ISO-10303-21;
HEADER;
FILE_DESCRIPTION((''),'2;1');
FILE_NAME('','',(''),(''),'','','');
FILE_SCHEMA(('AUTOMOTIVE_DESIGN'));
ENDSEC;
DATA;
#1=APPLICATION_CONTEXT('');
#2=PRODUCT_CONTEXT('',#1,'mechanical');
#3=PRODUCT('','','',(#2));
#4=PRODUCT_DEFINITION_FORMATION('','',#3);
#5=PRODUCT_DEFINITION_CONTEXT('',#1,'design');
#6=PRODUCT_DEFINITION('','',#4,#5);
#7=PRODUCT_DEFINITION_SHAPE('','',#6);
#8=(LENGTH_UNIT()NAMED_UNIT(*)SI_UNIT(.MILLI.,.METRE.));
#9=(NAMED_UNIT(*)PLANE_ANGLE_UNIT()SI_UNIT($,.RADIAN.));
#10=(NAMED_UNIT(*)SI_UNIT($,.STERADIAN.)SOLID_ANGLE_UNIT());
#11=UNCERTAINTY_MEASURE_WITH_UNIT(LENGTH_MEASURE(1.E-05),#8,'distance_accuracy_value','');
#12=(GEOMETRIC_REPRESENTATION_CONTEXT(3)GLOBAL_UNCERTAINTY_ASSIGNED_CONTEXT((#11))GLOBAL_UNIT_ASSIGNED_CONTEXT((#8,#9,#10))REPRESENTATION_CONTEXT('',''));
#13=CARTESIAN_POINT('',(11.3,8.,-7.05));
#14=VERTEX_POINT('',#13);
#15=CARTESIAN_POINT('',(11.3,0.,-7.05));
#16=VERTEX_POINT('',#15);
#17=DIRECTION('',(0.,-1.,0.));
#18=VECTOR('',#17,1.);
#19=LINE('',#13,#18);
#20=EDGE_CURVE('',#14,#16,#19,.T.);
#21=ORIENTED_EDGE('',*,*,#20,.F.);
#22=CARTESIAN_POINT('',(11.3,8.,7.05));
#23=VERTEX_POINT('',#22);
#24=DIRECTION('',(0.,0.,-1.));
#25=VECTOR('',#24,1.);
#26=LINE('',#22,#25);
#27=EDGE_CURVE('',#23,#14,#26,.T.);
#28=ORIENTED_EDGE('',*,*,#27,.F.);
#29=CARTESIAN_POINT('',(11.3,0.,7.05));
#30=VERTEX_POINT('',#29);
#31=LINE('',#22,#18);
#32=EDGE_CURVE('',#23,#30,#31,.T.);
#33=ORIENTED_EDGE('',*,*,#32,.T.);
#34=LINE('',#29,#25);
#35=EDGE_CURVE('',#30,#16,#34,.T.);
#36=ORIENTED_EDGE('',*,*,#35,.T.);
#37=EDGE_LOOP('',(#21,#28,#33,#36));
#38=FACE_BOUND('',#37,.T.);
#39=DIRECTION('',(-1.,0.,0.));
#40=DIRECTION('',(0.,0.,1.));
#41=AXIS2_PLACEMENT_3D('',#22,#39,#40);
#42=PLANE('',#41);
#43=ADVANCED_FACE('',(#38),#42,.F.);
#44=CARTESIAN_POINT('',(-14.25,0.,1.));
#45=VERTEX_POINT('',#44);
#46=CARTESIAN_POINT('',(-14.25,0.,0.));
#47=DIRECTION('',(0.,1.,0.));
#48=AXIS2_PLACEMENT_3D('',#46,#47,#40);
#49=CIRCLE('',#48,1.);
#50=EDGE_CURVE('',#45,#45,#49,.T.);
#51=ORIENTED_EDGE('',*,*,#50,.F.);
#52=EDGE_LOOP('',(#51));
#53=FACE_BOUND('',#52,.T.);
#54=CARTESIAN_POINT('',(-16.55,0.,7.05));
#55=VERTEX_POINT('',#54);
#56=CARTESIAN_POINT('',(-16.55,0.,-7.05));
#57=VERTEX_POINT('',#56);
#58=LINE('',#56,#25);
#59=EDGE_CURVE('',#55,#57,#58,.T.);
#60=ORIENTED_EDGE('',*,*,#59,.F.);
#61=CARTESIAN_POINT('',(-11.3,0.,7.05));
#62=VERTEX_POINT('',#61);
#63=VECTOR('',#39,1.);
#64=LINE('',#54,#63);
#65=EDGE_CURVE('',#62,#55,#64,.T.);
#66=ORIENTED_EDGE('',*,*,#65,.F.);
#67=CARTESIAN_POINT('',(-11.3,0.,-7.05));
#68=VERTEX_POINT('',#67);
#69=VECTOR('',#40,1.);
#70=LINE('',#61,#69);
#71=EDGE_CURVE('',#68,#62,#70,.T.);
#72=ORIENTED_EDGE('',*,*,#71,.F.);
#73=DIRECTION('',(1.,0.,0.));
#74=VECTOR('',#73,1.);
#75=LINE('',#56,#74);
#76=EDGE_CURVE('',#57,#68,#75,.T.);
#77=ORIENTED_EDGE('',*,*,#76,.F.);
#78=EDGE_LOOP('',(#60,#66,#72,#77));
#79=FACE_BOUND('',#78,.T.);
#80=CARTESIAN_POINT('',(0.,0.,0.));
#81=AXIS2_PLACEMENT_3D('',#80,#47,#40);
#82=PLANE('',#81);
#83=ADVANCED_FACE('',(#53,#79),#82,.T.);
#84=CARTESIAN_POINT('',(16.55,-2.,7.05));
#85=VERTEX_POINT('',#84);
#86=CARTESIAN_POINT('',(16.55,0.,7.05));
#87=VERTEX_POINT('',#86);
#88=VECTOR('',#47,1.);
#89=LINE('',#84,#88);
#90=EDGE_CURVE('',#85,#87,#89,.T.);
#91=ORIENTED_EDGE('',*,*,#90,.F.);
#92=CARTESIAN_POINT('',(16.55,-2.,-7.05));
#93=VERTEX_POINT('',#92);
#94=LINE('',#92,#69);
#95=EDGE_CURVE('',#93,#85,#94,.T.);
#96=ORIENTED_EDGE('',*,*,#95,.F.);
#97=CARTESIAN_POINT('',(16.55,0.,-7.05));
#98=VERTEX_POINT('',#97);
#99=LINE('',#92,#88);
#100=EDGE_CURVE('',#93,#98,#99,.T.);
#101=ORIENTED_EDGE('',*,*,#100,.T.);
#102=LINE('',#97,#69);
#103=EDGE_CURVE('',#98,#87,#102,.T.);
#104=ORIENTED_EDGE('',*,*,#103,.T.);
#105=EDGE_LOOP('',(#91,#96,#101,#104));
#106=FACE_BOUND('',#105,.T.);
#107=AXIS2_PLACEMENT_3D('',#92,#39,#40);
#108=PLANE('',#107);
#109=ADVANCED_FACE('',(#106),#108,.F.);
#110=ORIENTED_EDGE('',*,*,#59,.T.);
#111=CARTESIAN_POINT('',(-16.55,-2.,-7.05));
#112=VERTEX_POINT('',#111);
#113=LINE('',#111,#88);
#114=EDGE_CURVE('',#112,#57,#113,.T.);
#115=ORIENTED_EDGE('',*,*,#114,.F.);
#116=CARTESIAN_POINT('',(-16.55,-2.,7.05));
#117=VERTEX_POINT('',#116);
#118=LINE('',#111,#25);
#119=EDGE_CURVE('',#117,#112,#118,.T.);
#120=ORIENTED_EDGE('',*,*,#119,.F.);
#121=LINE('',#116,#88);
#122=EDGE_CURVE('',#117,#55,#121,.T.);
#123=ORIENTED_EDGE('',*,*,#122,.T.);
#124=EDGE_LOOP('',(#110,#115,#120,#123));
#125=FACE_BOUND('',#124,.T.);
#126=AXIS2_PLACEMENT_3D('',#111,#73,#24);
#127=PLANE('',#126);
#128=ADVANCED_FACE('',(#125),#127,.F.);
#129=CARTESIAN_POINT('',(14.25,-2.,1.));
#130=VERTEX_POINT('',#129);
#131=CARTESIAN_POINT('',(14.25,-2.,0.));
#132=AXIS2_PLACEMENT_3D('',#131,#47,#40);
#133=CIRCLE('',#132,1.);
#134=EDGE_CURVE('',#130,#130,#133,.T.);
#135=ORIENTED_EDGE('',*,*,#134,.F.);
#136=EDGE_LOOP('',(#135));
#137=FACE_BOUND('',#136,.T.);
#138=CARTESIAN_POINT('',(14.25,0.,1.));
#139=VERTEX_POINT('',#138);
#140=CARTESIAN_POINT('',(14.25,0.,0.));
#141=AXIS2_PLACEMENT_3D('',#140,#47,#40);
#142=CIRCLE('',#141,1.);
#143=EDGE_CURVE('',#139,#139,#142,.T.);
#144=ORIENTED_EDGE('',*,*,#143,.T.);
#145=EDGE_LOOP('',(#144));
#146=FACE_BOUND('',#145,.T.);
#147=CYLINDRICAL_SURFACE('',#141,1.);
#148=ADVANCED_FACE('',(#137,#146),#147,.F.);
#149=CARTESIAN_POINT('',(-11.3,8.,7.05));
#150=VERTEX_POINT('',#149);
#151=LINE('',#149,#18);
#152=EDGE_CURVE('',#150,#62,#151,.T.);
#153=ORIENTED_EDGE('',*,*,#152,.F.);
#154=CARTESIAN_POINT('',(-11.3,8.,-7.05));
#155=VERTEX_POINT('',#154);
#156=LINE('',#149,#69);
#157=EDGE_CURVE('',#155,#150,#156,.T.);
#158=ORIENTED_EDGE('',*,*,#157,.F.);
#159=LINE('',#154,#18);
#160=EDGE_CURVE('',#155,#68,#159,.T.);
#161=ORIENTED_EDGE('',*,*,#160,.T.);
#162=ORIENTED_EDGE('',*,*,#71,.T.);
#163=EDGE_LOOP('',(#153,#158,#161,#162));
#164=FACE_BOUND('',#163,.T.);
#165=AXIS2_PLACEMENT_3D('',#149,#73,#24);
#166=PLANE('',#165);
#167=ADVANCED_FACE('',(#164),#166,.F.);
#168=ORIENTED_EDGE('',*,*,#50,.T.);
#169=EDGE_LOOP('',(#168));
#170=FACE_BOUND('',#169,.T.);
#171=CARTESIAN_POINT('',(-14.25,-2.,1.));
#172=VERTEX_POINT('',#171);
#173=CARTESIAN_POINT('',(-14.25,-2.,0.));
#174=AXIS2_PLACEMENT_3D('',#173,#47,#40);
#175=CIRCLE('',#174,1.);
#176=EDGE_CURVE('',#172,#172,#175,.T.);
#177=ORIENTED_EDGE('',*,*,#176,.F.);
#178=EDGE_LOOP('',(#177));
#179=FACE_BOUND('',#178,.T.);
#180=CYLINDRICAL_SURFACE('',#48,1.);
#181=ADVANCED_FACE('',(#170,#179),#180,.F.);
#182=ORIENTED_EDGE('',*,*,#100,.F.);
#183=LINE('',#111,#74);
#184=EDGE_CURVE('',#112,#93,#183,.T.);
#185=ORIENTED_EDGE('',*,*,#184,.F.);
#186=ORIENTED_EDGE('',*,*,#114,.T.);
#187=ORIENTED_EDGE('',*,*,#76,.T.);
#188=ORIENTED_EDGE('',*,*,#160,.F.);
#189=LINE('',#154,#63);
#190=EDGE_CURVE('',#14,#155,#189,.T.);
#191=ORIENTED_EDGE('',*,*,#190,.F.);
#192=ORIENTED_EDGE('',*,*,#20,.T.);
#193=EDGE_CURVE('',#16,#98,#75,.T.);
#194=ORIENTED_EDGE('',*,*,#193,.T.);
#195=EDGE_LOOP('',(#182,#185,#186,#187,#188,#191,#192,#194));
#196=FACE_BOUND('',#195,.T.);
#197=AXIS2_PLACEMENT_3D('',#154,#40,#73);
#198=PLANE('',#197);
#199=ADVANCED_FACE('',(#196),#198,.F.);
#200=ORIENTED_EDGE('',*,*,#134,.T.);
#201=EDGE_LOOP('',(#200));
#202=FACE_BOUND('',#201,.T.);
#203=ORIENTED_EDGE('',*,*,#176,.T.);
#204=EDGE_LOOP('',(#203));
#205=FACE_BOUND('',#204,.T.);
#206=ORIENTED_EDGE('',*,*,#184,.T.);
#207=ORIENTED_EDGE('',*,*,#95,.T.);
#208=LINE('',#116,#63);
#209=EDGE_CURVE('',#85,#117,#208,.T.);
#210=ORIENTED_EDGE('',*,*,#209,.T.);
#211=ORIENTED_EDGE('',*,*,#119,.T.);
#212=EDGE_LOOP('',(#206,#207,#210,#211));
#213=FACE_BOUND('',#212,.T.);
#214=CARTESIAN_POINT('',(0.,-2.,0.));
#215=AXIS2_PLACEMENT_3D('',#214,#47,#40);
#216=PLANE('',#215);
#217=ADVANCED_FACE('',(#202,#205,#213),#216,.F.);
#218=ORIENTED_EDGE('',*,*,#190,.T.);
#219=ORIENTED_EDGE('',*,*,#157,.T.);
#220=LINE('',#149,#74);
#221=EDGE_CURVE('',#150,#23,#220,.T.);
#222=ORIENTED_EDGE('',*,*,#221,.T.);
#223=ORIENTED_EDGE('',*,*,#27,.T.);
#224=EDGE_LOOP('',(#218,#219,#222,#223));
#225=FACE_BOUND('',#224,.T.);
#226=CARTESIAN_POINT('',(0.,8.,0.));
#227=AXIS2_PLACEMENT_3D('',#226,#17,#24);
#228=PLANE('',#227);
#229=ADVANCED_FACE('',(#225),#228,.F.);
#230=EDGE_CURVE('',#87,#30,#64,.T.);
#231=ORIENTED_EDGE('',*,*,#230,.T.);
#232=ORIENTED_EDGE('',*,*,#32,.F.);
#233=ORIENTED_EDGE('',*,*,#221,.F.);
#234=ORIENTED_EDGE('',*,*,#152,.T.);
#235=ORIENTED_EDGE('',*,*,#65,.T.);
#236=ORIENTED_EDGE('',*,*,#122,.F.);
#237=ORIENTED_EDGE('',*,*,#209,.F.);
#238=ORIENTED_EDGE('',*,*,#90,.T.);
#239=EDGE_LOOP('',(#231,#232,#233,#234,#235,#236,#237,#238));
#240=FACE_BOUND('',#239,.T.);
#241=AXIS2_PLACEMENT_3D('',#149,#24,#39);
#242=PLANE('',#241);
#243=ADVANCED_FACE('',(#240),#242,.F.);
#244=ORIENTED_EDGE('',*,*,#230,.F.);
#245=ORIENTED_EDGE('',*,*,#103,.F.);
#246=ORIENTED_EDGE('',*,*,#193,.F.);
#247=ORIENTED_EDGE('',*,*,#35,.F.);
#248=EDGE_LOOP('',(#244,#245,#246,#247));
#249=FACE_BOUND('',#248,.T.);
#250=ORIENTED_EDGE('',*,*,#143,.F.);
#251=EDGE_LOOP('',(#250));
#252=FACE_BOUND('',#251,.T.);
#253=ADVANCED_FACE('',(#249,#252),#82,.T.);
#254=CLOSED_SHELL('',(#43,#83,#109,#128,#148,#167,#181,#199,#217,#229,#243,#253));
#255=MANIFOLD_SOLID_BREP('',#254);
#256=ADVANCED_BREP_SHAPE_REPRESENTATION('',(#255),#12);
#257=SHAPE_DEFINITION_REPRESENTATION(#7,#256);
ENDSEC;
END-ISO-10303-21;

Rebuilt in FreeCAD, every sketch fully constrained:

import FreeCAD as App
import Part
import Sketcher
Q = App.Units.Quantity


def add_polygon(sketch, points):
    """Adds a closed chain of lines whose ends are joined by coincident constraints."""
    first, n = sketch.GeometryCount, len(points)
    for a, b in zip(points, points[1:] + points[:1]):
        sketch.addGeometry(Part.LineSegment(App.Vector(*a, 0), App.Vector(*b, 0)), False)
    for i in range(n):
        sketch.addConstraint(Sketcher.Constraint("Coincident", first + i, 2, first + (i + 1) % n, 1))

doc = App.newDocument("Part")
params = doc.addObject("Spreadsheet::Sheet", "Params")
for row, (alias, value) in enumerate([
    ("sketch1_width", "22.6 mm"),
    ("sketch1_height", "14.1 mm"),
    ("pad1_length", "8 mm"),
    ("sketch2_width", "33.1 mm"),
    ("sketch2_height", "14.1 mm"),
    ("pad2_length", "2 mm"),
    ("sketch3_diameter", "2 mm"),
    ("hole_diameter", "2 mm"),
    ("hole_depth", "2 mm"),
], start=1):
    params.set(f"A{row}", alias)
    params.set(f"B{row}", "=" + value)
    params.setAlias(f"B{row}", alias)

body = doc.addObject("PartDesign::Body", "Body")

# Sketch on XZ plane
sketch1 = body.newObject("Sketcher::SketchObject", "Sketch")
sketch1.AttachmentSupport = (doc.getObject("XZ_Plane"), [""])
sketch1.MapMode = "FlatFace"
add_polygon(sketch1, [(-11.3, -7.05), (-11.3, 7.05), (11.3, 7.05), (11.3, -7.05)])  # lines 0-3
sketch1.addConstraint(Sketcher.Constraint("Vertical", 0))
sketch1.addConstraint(Sketcher.Constraint("Horizontal", 1))
sketch1.addConstraint(Sketcher.Constraint("Vertical", 2))
sketch1.addConstraint(Sketcher.Constraint("Horizontal", 3))
sketch1.addConstraint(Sketcher.Constraint("Symmetric", 0, 2, 2, 2, -1, 1))
sketch1.addConstraint(Sketcher.Constraint("DistanceX", 1, 1, 1, 2, Q("22.6 mm")))
sketch1.addConstraint(Sketcher.Constraint("DistanceY", 0, 1, 0, 2, Q("14.1 mm")))
sketch1.setExpression("Constraints[9]", "Params.sketch1_width")
sketch1.setExpression("Constraints[10]", "Params.sketch1_height")
pad1 = body.newObject("PartDesign::Pad", "Pad")
pad1.Profile = sketch1
pad1.setExpression("Length", "Params.pad1_length")
pad1.Reversed = True

# Sketch on XZ plane
sketch2 = body.newObject("Sketcher::SketchObject", "Sketch001")
sketch2.AttachmentSupport = (doc.getObject("XZ_Plane"), [""])
sketch2.MapMode = "FlatFace"
add_polygon(sketch2, [(-16.55, 7.05), (-16.55, -7.05), (16.55, -7.05), (16.55, 7.05)])  # lines 0-3
sketch2.addConstraint(Sketcher.Constraint("Vertical", 0))
sketch2.addConstraint(Sketcher.Constraint("Horizontal", 1))
sketch2.addConstraint(Sketcher.Constraint("Vertical", 2))
sketch2.addConstraint(Sketcher.Constraint("Horizontal", 3))
sketch2.addConstraint(Sketcher.Constraint("Symmetric", 0, 2, 2, 2, -1, 1))
sketch2.addConstraint(Sketcher.Constraint("DistanceX", 1, 1, 1, 2, Q("33.1 mm")))
sketch2.addConstraint(Sketcher.Constraint("DistanceY", 0, 2, 0, 1, Q("14.1 mm")))
sketch2.setExpression("Constraints[9]", "Params.sketch2_width")
sketch2.setExpression("Constraints[10]", "Params.sketch2_height")
pad2 = body.newObject("PartDesign::Pad", "Pad001")
pad2.Profile = sketch2
pad2.setExpression("Length", "Params.pad2_length")

# Sketch on XZ plane
sketch3 = body.newObject("Sketcher::SketchObject", "Sketch002")
sketch3.AttachmentSupport = (doc.getObject("XZ_Plane"), [""])
sketch3.MapMode = "FlatFace"
sketch3.addGeometry(Part.Circle(App.Vector(-14.25, 0, 0), App.Vector(0, 0, 1), 1), False)
sketch3.addGeometry(Part.Circle(App.Vector(14.25, 0, 0), App.Vector(0, 0, 1), 1), False)
sketch3.addConstraint(Sketcher.Constraint("Equal", 0, 1))
sketch3.addConstraint(Sketcher.Constraint("Symmetric", 0, 3, 1, 3, -1, 1))
sketch3.addConstraint(Sketcher.Constraint("PointOnObject", 0, 3, -1))
sketch3.addConstraint(Sketcher.Constraint("Diameter", 0, Q("2 mm")))
sketch3.addConstraint(Sketcher.Constraint("DistanceX", 0, 3, 1, 3, Q("28.5 mm")))
sketch3.setExpression("Constraints[3]", "Params.sketch3_diameter")
doc.recompute()
hole = body.newObject("PartDesign::Hole", "Hole")
hole.Profile = sketch3
hole.ThreadType = "None"
hole.setExpression("Diameter", "Params.hole_diameter")
hole.DepthType = "Dimension"
hole.setExpression("Depth", "Params.hole_depth")
hole.DrillPoint = "Flat"
hole.Reversed = True

doc.recompute()
